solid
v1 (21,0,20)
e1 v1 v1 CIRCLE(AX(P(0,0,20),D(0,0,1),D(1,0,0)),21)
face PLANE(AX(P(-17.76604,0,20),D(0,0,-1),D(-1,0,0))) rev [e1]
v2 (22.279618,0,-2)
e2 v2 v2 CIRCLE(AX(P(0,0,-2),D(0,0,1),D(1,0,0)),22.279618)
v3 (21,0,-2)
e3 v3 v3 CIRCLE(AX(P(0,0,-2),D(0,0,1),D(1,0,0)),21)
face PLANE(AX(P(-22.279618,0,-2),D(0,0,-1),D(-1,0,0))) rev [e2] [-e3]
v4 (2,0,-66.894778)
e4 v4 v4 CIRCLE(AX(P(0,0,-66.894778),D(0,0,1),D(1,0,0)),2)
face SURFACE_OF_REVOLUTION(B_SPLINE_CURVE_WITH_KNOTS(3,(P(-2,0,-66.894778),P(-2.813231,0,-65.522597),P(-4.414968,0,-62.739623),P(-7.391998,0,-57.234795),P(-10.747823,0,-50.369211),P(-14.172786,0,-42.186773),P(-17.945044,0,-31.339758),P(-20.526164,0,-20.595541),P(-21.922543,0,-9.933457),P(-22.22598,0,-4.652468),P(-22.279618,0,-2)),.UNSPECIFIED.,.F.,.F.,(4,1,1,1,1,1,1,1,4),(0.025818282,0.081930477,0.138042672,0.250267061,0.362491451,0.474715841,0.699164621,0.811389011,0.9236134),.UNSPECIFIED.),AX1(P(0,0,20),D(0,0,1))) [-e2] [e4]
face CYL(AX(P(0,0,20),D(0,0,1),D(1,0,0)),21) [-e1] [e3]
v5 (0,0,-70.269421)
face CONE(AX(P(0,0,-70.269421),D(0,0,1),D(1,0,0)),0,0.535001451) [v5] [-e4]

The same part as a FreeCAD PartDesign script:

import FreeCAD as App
import Part
import Sketcher
from FreeCAD import Vector
Q = App.Units.Quantity

doc = App.newDocument("Part")
body = doc.addObject("PartDesign::Body", "Body")

# Sketch on XZ plane
sketch1 = body.newObject("Sketcher::SketchObject", "Sketch")
sketch1.AttachmentSupport = (doc.getObject("XZ_Plane"), [""])
sketch1.MapMode = "FlatFace"
sketch1.addGeometry([
    Part.LineSegment(Vector(-21, 20, 0), Vector(0, 20, 0)),  # 0
    Part.LineSegment(Vector(0, 20, 0), Vector(0, -70.269421, 0)),  # 1
    Part.LineSegment(Vector(0, -70.269421, 0), Vector(-2, -66.894778, 0)),  # 2
    Part.BSplineCurve([Vector(-22.279618, -2, 0), Vector(-22.22598, -4.652468, 0), Vector(-21.922543, -9.933457, 0), Vector(-20.526164, -20.595541, 0), Vector(-17.945044, -31.339758, 0), Vector(-14.172786, -42.186773, 0), Vector(-10.747823, -50.369211, 0), Vector(-7.391998, -57.234795, 0), Vector(-4.414968, -62.739623, 0), Vector(-2.813231, -65.522597, 0), Vector(-2, -66.894778, 0)], [4, 1, 1, 1, 1, 1, 1, 1, 4], [0.025818282, 0.138042672, 0.250267061, 0.474715841, 0.586940231, 0.699164621, 0.811389011, 0.867501205, 0.9236134], False, 3, [1, 1, 1, 1, 1, 1, 1, 1, 1, 1, 1], False),  # 3
    Part.LineSegment(Vector(-22.279618, -2, 0), Vector(-21, -2, 0)),  # 4
    Part.LineSegment(Vector(-21, -2, 0), Vector(-21, 20, 0)),  # 5
], False)
sketch1.addConstraint([
    Sketcher.Constraint("Block", 3),
    Sketcher.Constraint("Coincident", 0, 2, 1, 1),
    Sketcher.Constraint("Coincident", 1, 2, 2, 1),
    Sketcher.Constraint("Coincident", 2, 2, 3, 2),
    Sketcher.Constraint("Coincident", 3, 1, 4, 1),
    Sketcher.Constraint("Coincident", 4, 2, 5, 1),
    Sketcher.Constraint("Coincident", 5, 2, 0, 1),
    Sketcher.Constraint("Horizontal", 0),
    Sketcher.Constraint("Vertical", 1),
    Sketcher.Constraint("Horizontal", 4),
    Sketcher.Constraint("Vertical", 5),
    Sketcher.Constraint("PointOnObject", 0, 2, -2),
    Sketcher.Constraint("DistanceX", 0, 1, 0, 2, Q("21 mm")),
    Sketcher.Constraint("DistanceY", 5, 1, 5, 2, Q("22 mm")),
    Sketcher.Constraint("DistanceY", 1, 2, 1, 1, Q("90.269421 mm")),
])
revolution = body.newObject("PartDesign::Revolution", "Revolution")
revolution.Profile = sketch1
revolution.ReferenceAxis = (sketch1, ["V_Axis"])
revolution.Angle = 360

doc.recompute()
